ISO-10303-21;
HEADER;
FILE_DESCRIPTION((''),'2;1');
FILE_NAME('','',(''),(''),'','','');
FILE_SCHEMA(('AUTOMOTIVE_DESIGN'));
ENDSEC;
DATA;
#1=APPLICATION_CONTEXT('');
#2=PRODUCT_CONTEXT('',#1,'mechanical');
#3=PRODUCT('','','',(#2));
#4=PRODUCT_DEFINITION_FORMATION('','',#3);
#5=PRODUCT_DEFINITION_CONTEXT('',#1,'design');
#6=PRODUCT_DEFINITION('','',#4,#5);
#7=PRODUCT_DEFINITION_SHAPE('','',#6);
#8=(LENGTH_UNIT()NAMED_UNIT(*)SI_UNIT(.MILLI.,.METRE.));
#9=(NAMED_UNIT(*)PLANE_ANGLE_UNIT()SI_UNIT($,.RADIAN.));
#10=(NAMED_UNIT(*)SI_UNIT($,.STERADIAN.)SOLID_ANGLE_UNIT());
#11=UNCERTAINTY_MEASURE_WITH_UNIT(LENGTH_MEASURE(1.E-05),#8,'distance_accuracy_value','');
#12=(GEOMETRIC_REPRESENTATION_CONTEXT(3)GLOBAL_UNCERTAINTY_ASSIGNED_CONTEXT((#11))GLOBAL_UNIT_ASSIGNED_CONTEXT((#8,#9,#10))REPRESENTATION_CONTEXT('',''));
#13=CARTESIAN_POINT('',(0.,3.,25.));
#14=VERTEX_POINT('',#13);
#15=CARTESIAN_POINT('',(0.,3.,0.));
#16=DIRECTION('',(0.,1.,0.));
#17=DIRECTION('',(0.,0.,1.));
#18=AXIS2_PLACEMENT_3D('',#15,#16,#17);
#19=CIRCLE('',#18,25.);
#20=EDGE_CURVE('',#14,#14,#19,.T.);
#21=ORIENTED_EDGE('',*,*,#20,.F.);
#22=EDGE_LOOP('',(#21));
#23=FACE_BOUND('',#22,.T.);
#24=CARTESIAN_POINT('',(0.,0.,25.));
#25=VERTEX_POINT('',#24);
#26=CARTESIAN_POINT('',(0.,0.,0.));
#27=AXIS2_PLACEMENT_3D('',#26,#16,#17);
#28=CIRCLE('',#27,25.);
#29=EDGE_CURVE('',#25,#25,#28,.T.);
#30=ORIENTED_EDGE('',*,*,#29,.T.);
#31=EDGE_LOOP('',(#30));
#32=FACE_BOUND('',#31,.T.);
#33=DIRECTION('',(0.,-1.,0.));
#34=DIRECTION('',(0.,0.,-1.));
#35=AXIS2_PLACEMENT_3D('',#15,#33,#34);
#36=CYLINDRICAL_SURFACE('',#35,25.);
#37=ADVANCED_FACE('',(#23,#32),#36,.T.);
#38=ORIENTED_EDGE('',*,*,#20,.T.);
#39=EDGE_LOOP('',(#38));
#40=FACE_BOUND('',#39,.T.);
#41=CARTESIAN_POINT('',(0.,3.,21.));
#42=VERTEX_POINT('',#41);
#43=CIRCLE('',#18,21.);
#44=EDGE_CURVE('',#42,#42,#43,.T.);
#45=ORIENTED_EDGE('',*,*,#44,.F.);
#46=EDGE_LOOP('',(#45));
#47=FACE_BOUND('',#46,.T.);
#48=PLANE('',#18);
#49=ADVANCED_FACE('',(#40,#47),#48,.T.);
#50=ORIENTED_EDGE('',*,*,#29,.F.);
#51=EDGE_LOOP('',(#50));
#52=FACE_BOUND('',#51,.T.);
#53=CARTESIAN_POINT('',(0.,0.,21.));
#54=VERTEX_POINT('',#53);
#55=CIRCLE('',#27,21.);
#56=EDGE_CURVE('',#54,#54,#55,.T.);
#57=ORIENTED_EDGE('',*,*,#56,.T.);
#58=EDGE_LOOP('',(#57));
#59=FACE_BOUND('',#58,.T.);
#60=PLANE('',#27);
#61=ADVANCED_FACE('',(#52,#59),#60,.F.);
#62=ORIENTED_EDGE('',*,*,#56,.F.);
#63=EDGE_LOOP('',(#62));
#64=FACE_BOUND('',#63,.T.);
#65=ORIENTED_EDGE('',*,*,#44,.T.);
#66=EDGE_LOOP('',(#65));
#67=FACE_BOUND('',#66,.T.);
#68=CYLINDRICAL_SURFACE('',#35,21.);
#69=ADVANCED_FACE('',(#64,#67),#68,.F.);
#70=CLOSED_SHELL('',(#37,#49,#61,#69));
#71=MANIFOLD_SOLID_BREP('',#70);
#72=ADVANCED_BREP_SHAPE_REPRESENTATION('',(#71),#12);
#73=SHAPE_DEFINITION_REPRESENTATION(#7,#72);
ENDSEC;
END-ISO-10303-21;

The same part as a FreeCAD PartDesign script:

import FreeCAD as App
import Part
import Sketcher
from FreeCAD import Vector

doc = App.newDocument("Part")
body = doc.addObject("PartDesign::Body", "Body")

# Sketch on XZ plane
sketch1 = doc.addObject("Sketcher::SketchObject", "Sketch")
body.addObject(sketch1)
sketch1.AttachmentSupport = (doc.XZ_Plane, [""])
sketch1.MapMode = "FlatFace"
sketch1.addGeometry([
    Part.Circle(Vector(0, 0, 0), Vector(0, 0, 1), 25),
    Part.Circle(Vector(0, 0, 0), Vector(0, 0, 1), 21),
], False)
sketch1.addConstraint([
    Sketcher.Constraint("Coincident", 0, 3, -1, 1),
    Sketcher.Constraint("Coincident", 1, 3, -1, 1),
    Sketcher.Constraint("Diameter", 0, 50.0),
    Sketcher.Constraint("Diameter", 1, 42.0),
])
pad1 = doc.addObject("PartDesign::Pad", "Pad")
body.addObject(pad1)
pad1.Profile = sketch1
pad1.Length = 3
pad1.Reversed = True

doc.recompute()
